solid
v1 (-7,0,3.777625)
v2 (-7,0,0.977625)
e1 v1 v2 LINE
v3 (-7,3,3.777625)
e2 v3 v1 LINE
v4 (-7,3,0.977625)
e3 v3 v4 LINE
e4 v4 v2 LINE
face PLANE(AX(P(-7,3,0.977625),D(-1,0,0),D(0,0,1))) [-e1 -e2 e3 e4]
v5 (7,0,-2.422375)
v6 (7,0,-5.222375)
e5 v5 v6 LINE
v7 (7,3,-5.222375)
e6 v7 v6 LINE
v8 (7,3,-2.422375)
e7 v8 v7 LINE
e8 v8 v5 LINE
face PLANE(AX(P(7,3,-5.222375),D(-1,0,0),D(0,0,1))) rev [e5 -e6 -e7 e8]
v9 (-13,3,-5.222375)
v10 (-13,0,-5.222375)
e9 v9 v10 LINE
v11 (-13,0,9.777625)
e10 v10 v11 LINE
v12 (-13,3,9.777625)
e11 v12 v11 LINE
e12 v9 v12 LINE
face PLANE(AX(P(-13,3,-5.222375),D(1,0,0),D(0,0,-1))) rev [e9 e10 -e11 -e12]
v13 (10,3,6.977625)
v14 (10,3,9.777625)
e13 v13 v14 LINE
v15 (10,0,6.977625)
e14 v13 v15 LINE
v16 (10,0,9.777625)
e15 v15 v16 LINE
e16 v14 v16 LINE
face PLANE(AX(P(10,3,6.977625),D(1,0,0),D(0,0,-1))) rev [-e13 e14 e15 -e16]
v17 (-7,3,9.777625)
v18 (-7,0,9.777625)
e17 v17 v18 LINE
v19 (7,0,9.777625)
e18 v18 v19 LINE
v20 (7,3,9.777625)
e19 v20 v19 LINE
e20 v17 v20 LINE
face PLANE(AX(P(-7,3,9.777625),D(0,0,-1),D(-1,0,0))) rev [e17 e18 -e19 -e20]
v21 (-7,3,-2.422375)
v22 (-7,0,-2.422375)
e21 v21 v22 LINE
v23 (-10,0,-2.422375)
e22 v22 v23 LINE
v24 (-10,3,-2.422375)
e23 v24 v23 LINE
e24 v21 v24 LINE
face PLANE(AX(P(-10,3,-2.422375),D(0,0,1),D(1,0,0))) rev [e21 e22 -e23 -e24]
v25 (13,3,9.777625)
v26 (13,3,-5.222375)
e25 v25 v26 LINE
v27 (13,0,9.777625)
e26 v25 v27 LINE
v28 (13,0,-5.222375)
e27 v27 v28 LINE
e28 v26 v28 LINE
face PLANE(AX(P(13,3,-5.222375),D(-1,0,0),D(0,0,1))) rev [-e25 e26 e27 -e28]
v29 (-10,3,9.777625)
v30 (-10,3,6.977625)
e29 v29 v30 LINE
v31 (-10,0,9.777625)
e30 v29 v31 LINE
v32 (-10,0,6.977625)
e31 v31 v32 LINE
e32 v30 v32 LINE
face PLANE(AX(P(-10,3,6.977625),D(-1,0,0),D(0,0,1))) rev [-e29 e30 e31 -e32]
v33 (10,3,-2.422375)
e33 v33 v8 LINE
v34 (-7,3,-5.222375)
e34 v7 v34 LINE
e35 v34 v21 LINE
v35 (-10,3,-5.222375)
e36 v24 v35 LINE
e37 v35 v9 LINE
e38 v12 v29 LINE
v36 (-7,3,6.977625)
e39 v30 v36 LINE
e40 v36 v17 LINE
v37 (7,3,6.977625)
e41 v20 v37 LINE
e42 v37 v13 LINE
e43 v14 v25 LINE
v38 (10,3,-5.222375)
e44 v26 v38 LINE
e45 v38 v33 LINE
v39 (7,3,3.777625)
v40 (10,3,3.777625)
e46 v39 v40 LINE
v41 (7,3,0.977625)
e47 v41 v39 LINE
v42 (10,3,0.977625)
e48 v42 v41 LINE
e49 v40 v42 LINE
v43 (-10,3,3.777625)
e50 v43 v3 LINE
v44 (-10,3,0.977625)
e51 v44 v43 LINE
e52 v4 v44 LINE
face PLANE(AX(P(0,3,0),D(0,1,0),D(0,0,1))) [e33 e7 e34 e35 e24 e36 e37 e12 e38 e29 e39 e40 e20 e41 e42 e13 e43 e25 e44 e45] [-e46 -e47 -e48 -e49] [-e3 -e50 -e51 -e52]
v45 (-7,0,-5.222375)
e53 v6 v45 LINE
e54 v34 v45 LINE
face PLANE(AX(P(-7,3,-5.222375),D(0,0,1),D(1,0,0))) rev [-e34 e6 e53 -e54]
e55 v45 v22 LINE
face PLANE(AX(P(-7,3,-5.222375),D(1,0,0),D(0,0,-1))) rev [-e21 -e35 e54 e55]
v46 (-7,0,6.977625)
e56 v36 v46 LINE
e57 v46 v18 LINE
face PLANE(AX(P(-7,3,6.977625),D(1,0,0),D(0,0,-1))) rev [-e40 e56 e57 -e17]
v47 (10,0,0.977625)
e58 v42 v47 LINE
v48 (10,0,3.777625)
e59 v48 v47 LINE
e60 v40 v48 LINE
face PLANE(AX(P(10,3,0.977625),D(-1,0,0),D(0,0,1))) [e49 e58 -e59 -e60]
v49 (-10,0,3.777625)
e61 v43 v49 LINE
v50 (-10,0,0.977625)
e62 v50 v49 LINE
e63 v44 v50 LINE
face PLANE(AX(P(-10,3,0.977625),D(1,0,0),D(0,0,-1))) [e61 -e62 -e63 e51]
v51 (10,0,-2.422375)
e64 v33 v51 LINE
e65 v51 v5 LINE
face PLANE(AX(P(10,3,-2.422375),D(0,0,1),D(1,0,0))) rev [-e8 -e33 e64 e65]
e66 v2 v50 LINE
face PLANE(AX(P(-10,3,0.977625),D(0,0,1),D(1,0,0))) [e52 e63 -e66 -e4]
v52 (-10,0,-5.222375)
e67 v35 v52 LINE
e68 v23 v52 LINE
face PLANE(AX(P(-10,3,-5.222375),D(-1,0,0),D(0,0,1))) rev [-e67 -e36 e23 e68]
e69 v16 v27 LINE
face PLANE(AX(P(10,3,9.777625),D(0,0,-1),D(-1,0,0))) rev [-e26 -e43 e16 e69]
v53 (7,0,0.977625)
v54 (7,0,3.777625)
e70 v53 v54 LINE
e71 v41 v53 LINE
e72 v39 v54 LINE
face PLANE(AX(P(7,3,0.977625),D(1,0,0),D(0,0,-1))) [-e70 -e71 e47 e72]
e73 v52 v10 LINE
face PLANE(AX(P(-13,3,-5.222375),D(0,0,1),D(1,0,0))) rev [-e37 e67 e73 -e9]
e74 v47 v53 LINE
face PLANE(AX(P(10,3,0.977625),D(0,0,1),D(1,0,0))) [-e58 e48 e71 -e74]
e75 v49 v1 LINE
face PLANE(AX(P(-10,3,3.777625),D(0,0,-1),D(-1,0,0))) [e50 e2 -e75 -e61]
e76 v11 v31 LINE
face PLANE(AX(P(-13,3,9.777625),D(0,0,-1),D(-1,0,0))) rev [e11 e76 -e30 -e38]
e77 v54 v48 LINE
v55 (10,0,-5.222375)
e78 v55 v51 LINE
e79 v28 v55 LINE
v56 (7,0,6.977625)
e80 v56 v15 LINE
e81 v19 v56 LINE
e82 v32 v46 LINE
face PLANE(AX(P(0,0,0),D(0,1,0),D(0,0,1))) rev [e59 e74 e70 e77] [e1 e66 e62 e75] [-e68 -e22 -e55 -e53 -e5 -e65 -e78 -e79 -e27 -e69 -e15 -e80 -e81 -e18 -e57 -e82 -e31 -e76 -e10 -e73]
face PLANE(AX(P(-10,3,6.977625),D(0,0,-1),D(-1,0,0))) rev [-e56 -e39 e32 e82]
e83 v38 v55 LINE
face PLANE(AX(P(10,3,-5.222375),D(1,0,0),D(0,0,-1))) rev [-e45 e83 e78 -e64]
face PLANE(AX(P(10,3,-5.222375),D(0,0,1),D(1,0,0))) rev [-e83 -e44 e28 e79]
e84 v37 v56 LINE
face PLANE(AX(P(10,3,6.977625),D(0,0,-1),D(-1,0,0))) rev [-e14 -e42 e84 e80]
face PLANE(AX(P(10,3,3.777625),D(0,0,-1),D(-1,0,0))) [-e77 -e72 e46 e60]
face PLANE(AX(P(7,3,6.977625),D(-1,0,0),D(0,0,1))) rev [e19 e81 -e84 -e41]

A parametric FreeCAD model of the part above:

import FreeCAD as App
import Part
import Sketcher
Q = App.Units.Quantity


def add_polygon(sketch, points):
    """Adds a closed chain of lines whose ends are joined by coincident constraints."""
    first, n = sketch.GeometryCount, len(points)
    for a, b in zip(points, points[1:] + points[:1]):
        sketch.addGeometry(Part.LineSegment(App.Vector(*a, 0), App.Vector(*b, 0)), False)
    for i in range(n):
        sketch.addConstraint(Sketcher.Constraint("Coincident", first + i, 2, first + (i + 1) % n, 1))

doc = App.newDocument("Part")
params = doc.addObject("Spreadsheet::Sheet", "Params")
for row, (alias, value) in enumerate([
    ("sketch1_width", "3 mm"),
    ("sketch1_width2", "14 mm"),
    ("sketch1_height", "15 mm"),
    ("sketch1_height2", "2.8 mm"),
    ("pad1_length", "3 mm"),
], start=1):
    params.set(f"A{row}", alias)
    params.set(f"B{row}", "=" + value)
    params.setAlias(f"B{row}", alias)

body = doc.addObject("PartDesign::Body", "Body")

# Sketch on XZ plane
sketch1 = body.newObject("Sketcher::SketchObject", "Sketch")
sketch1.AttachmentSupport = (doc.getObject("XZ_Plane"), [""])
sketch1.MapMode = "FlatFace"
add_polygon(sketch1, [(-10, 7), (-7, 7), (-7, 9.8), (7, 9.8), (7, 7), (10, 7), (10, 9.8), (13, 9.8), (13, -5.2), (10, -5.2), (10, -2.4), (7, -2.4), (7, -5.2), (-7, -5.2), (-7, -2.4), (-10, -2.4), (-10, -5.2), (-13, -5.2), (-13, 9.8), (-10, 9.8)])  # lines 0-19
add_polygon(sketch1, [(-7, 3.8), (-10, 3.8), (-10, 1), (-7, 1)])  # lines 20-23
add_polygon(sketch1, [(10, 3.8), (7, 3.8), (7, 1), (10, 1)])  # lines 24-27
sketch1.addConstraint([
    Sketcher.Constraint("Horizontal", 0),
    Sketcher.Constraint("Vertical", 1),
    Sketcher.Constraint("Horizontal", 2),
    Sketcher.Constraint("Vertical", 3),
    Sketcher.Constraint("Horizontal", 4),
    Sketcher.Constraint("Vertical", 5),
    Sketcher.Constraint("Horizontal", 6),
    Sketcher.Constraint("Vertical", 7),
    Sketcher.Constraint("Horizontal", 8),
    Sketcher.Constraint("Vertical", 9),
    Sketcher.Constraint("Horizontal", 10),
    Sketcher.Constraint("Vertical", 11),
    Sketcher.Constraint("Horizontal", 12),
    Sketcher.Constraint("Vertical", 13),
    Sketcher.Constraint("Horizontal", 14),
    Sketcher.Constraint("Vertical", 15),
    Sketcher.Constraint("Horizontal", 16),
    Sketcher.Constraint("Vertical", 17),
    Sketcher.Constraint("Horizontal", 18),
    Sketcher.Constraint("Vertical", 19),
    Sketcher.Constraint("Horizontal", 20),
    Sketcher.Constraint("Vertical", 21),
    Sketcher.Constraint("Horizontal", 22),
    Sketcher.Constraint("Vertical", 23),
    Sketcher.Constraint("Horizontal", 24),
    Sketcher.Constraint("Vertical", 25),
    Sketcher.Constraint("Horizontal", 26),
    Sketcher.Constraint("Vertical", 27),
    Sketcher.Constraint("Symmetric", 0, 2, 3, 2, -2),
    Sketcher.Constraint("Symmetric", 10, 2, 13, 2, -2),
    Sketcher.Constraint("Symmetric", 8, 2, 15, 2, -2),
    Sketcher.Constraint("Symmetric", 6, 2, 17, 2, -2),
    Sketcher.Constraint("Symmetric", 23, 2, 24, 2, -2),
    Sketcher.Constraint("Symmetric", 21, 2, 26, 2, -2),
    Sketcher.Constraint("Horizontal", 2, 2, 5, 2),
    Sketcher.Constraint("Horizontal", 8, 2, 11, 2),
    Sketcher.Constraint("Vertical", 5, 2, 8, 2),
    Sketcher.Constraint("Vertical", 3, 2, 10, 2),
    Sketcher.Constraint("Vertical", 15, 2, 18, 2),
    Sketcher.Constraint("Vertical", 19, 2, 20, 2),
    Sketcher.Constraint("Vertical", 13, 2, 22, 2),
    Sketcher.Constraint("Equal", 4, 6),
    Sketcher.Constraint("Equal", 5, 9),
    Sketcher.Constraint("Equal", 19, 21),
    Sketcher.Constraint("DistanceX", 0, 1, 0, 2, Q("3 mm")),
    Sketcher.Constraint("DistanceX", 2, 1, 2, 2, Q("14 mm")),
    Sketcher.Constraint("DistanceY", 7, 2, 7, 1, Q("15 mm")),
    Sketcher.Constraint("DistanceY", 1, 1, 1, 2, Q("2.8 mm")),
    Sketcher.Constraint("DistanceY", 20, 2, 18, 2, Q("6 mm")),
    Sketcher.Constraint("DistanceY", -1, 1, 0, 2, Q("6.977625 mm")),
])
sketch1.setExpression("Constraints[72]", "Params.sketch1_width")
sketch1.setExpression("Constraints[73]", "Params.sketch1_width2")
sketch1.setExpression("Constraints[74]", "Params.sketch1_height")
sketch1.setExpression("Constraints[75]", "Params.sketch1_height2")
pad1 = body.newObject("PartDesign::Pad", "Pad")
pad1.Profile = sketch1
pad1.setExpression("Length", "Params.pad1_length")
pad1.Reversed = True

doc.recompute()
